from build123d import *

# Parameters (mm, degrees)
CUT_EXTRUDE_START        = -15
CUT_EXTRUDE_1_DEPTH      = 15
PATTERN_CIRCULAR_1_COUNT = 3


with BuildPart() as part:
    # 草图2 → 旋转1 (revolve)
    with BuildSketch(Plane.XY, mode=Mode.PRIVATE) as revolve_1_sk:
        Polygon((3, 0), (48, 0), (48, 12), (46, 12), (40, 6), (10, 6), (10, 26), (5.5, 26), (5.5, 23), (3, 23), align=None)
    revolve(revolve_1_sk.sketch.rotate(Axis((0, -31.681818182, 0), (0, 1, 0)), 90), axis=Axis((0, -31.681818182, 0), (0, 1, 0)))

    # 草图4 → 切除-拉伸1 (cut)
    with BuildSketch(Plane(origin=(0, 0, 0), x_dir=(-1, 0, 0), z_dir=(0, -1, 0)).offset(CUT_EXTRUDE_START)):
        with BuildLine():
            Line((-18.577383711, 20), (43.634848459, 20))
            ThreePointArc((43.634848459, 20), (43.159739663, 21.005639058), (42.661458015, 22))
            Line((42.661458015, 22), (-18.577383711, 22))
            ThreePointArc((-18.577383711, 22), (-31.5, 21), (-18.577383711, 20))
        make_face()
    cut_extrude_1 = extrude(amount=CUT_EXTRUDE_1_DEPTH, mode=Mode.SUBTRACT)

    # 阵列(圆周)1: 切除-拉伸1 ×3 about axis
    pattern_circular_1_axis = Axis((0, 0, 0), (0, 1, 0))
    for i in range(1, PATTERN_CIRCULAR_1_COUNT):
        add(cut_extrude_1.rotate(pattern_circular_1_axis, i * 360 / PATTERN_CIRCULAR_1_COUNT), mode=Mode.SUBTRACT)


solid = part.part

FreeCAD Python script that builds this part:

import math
import FreeCAD as App
import Part
import Sketcher
Q = App.Units.Quantity


def add_polygon(sketch, points):
    """Adds a closed chain of lines whose ends are joined by coincident constraints."""
    first, n = sketch.GeometryCount, len(points)
    for a, b in zip(points, points[1:] + points[:1]):
        sketch.addGeometry(Part.LineSegment(App.Vector(*a, 0), App.Vector(*b, 0)), False)
    for i in range(n):
        sketch.addConstraint(Sketcher.Constraint("Coincident", first + i, 2, first + (i + 1) % n, 1))

doc = App.newDocument("Part")
params = doc.addObject("Spreadsheet::Sheet", "Params")
for row, (alias, value) in enumerate([
    ("sketch1_width", "45 mm"),
    ("sketch1_width2", "2 mm"),
    ("sketch1_width3", "30 mm"),
    ("sketch1_height", "12 mm"),
    ("sketch1_height2", "20 mm"),
    ("revolution_angle", "360 deg"),
    ("sketch2_radius", "48 mm"),
    ("sketch2_radius2", "6.5 mm"),
    ("pocket1_length", "15 mm"),
], start=1):
    params.set(f"A{row}", alias)
    params.set(f"B{row}", "=" + value)
    params.setAlias(f"B{row}", alias)

body = doc.addObject("PartDesign::Body", "Body")

sketch1 = body.newObject("Sketcher::SketchObject", "Sketch")
sketch1.AttachmentSupport = (doc.getObject("XY_Plane"), [""])
sketch1.MapMode = "FlatFace"
add_polygon(sketch1, [(3, 0), (48, 0), (48, 12), (46, 12), (40, 6), (10, 6), (10, 26), (5.5, 26), (5.5, 23), (3, 23)])
sketch1.addConstraint([
    Sketcher.Constraint("Horizontal", 0),
    Sketcher.Constraint("Vertical", 1),
    Sketcher.Constraint("Horizontal", 2),
    Sketcher.Constraint("Horizontal", 4),
    Sketcher.Constraint("Vertical", 5),
    Sketcher.Constraint("Horizontal", 6),
    Sketcher.Constraint("Vertical", 7),
    Sketcher.Constraint("Horizontal", 8),
    Sketcher.Constraint("Vertical", 9),
    Sketcher.Constraint("PointOnObject", 0, 2, -1),
    Sketcher.Constraint("DistanceX", 0, 1, 0, 2, 45.0),
    Sketcher.Constraint("DistanceX", 2, 2, 2, 1, 2.0),
    Sketcher.Constraint("DistanceX", 4, 2, 4, 1, 30.0),
    Sketcher.Constraint("DistanceY", 1, 1, 1, 2, 12.0),
    Sketcher.Constraint("DistanceY", 5, 1, 5, 2, 20.0),
    Sketcher.Constraint("DistanceY", 7, 2, 7, 1, 3.0),
    Sketcher.Constraint("DistanceY", 9, 2, 9, 1, 23.0),
    Sketcher.Constraint("Angle", 3, Q("-135 deg")),
    Sketcher.Constraint("DistanceX", 6, 2, 6, 1, 4.5),
    Sketcher.Constraint("DistanceX", -1, 1, 0, 2, 48.0),
])
sketch1.setExpression("Constraints[20]", "Params.sketch1_width")
sketch1.setExpression("Constraints[21]", "Params.sketch1_width2")
sketch1.setExpression("Constraints[22]", "Params.sketch1_width3")
sketch1.setExpression("Constraints[23]", "Params.sketch1_height")
sketch1.setExpression("Constraints[24]", "Params.sketch1_height2")
revolution = body.newObject("PartDesign::Revolution", "Revolution")
revolution.Profile = sketch1
revolution.ReferenceAxis = (sketch1, ["V_Axis"])
revolution.setExpression("Angle", "Params.revolution_angle")

sketch2 = body.newObject("Sketcher::SketchObject", "Sketch001")
sketch2.AttachmentSupport = (doc.getObject("XZ_Plane"), [""])
sketch2.MapMode = "FlatFace"
sketch2.AttachmentOffset = App.Placement(App.Vector(0, 0, -15), App.Rotation())
sketch2.addGeometry([
    Part.LineSegment(App.Vector(18.577384, -20, 0), App.Vector(-43.634848, -20, 0)),
    Part.ArcOfCircle(Part.Circle(App.Vector(0, 0, 0), App.Vector(0, 0, 1), 48), math.radians(-155.375682), math.radians(-152.720387)),
    Part.LineSegment(App.Vector(-42.661458, -22, 0), App.Vector(18.577384, -22, 0)),
    Part.ArcOfCircle(Part.Circle(App.Vector(25, -21, 0), App.Vector(0, 0, 1), 6.5), math.radians(-171.150117), math.radians(171.150117)),
], False)
sketch2.addConstraint([
    Sketcher.Constraint("Coincident", 0, 2, 1, 1),
    Sketcher.Constraint("Coincident", 1, 2, 2, 1),
    Sketcher.Constraint("Coincident", 2, 2, 3, 1),
    Sketcher.Constraint("Coincident", 3, 2, 0, 1),
    Sketcher.Constraint("Horizontal", 0),
    Sketcher.Constraint("Horizontal", 2),
    Sketcher.Constraint("Coincident", 1, 3, -1, 1),
    Sketcher.Constraint("Vertical", 2, 2, 3, 2),
    Sketcher.Constraint("Radius", 1, 48.0),
    Sketcher.Constraint("Radius", 3, 6.5),
    Sketcher.Constraint("DistanceX", -1, 1, 3, 3, 25.0),
    Sketcher.Constraint("DistanceY", 3, 3, -1, 1, 21.0),
    Sketcher.Constraint("DistanceY", 0, 2, -1, 1, 20.0),
])
sketch2.setExpression("Constraints[8]", "Params.sketch2_radius")
sketch2.setExpression("Constraints[9]", "Params.sketch2_radius2")
pocket1 = body.newObject("PartDesign::Pocket", "Pocket")
pocket1.Profile = sketch2
pocket1.setExpression("Length", "Params.pocket1_length")
pocket1.Reversed = True
doc.recompute()

polarpattern = body.newObject("PartDesign::PolarPattern", "PolarPattern")
polarpattern.Originals = [pocket1]
polarpattern.Axis = (doc.getObject("Y_Axis"), [""])
polarpattern.Angle = 360
polarpattern.Occurrences = 3
body.Tip = polarpattern

doc.recompute()
